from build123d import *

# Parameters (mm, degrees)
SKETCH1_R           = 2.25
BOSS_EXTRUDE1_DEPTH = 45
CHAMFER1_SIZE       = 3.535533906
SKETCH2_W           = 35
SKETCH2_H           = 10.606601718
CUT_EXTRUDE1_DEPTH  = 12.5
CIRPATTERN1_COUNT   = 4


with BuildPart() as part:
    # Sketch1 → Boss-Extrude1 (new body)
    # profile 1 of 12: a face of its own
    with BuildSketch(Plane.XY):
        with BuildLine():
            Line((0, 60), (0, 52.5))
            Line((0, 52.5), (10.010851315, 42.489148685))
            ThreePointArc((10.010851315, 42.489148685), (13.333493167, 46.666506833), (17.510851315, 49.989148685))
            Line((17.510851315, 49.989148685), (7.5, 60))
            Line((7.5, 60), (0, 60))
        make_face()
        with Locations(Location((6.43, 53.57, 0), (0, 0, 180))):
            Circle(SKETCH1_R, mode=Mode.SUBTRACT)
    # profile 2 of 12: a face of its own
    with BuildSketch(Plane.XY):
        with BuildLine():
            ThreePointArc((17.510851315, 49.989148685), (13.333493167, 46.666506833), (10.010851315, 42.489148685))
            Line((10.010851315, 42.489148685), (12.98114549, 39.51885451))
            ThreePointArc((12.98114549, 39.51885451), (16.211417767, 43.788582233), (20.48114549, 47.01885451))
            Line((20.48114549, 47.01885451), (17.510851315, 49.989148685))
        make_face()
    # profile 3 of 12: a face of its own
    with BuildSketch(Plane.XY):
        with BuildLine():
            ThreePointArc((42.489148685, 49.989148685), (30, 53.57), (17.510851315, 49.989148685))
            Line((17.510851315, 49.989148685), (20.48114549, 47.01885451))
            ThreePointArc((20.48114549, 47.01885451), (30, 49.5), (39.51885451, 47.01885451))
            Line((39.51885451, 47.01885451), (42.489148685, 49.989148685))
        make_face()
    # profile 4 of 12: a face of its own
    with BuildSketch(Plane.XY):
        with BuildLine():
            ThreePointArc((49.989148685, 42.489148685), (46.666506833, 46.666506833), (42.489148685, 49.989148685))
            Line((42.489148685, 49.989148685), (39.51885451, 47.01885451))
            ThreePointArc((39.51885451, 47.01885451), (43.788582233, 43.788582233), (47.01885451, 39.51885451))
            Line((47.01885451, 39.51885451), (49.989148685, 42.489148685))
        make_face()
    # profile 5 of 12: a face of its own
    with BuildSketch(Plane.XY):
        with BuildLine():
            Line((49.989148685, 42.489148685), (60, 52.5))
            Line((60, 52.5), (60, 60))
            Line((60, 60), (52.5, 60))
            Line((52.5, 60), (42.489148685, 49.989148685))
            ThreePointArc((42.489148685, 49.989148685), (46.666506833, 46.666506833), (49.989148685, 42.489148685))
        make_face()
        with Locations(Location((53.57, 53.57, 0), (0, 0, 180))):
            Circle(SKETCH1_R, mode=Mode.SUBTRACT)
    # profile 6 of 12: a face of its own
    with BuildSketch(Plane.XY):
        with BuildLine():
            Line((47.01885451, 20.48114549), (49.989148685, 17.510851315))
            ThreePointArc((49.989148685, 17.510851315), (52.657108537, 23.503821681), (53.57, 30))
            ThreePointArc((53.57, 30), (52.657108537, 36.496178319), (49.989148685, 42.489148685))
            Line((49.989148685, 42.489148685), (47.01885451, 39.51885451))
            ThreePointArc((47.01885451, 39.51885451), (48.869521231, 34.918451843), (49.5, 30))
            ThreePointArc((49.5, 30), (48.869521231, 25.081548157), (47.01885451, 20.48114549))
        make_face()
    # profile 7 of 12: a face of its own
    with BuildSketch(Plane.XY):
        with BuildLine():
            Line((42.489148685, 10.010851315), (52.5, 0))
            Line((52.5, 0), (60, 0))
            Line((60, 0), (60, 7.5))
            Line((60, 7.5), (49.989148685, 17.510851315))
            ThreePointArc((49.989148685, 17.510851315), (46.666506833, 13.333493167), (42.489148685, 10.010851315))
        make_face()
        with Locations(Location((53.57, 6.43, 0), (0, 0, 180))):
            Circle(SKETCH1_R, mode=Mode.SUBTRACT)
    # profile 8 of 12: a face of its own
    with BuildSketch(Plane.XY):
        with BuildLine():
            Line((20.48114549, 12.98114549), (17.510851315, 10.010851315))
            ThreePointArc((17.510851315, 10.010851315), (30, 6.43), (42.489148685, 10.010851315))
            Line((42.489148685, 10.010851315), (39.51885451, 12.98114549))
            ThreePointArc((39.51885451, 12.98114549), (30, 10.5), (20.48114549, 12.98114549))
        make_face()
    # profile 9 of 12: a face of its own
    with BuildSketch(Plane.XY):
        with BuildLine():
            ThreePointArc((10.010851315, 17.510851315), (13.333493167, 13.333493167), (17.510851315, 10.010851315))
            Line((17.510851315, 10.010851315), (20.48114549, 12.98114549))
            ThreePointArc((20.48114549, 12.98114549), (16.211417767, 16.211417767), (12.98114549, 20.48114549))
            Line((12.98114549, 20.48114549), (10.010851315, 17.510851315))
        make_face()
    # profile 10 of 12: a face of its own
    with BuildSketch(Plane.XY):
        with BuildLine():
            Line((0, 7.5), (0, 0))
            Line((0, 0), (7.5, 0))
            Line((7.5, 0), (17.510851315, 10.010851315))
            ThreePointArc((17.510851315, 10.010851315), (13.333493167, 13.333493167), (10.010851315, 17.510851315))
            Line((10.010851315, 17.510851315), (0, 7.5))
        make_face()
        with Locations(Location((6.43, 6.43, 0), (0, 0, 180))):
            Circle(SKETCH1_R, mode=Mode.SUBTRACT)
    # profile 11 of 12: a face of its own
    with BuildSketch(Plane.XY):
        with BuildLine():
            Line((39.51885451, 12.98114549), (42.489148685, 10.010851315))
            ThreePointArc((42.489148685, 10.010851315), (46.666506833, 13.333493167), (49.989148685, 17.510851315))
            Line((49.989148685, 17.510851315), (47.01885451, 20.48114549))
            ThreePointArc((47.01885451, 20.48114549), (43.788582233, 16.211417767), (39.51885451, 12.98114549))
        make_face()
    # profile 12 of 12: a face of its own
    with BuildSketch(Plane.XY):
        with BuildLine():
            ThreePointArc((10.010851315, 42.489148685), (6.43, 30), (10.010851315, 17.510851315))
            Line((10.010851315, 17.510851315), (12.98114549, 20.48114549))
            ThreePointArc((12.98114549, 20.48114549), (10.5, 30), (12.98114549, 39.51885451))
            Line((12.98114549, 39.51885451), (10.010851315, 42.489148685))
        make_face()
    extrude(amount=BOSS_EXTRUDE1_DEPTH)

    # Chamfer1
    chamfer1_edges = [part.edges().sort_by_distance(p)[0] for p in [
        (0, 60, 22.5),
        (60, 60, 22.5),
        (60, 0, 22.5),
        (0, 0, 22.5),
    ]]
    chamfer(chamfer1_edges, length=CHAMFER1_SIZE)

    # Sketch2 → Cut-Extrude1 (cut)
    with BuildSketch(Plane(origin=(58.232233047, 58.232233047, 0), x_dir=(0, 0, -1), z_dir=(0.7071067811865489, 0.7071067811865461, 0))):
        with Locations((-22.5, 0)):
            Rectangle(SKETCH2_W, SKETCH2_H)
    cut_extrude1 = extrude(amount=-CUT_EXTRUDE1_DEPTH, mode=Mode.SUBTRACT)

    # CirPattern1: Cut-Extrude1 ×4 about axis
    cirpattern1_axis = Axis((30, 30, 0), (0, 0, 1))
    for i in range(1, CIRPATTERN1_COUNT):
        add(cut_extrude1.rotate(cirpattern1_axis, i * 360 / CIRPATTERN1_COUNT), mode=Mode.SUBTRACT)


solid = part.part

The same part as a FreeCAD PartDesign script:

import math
import FreeCAD as App
import Part
import Sketcher
from FreeCAD import Vector
Q = App.Units.Quantity


def edges_at(feature, points):
    """Names of the edges that pass closest to the given points."""
    edges = feature.Shape.Edges
    near = lambda p: min(range(len(edges)), key=lambda i: edges[i].distToShape(Part.Vertex(*p))[0])
    return sorted({f"Edge{near(p) + 1}" for p in points})

doc = App.newDocument("Part")
body = doc.addObject("PartDesign::Body", "Body")

# Sketch on XY plane
sketch1 = doc.addObject("Sketcher::SketchObject", "Sketch")
body.addObject(sketch1)
sketch1.AttachmentSupport = (doc.XY_Plane, [""])
sketch1.MapMode = "FlatFace"
sketch1.addGeometry(Part.LineSegment(Vector(0, 60, 0), Vector(0, 52.5, 0)), False)
sketch1.addGeometry(Part.LineSegment(Vector(0, 52.5, 0), Vector(10, 42.5, 0)), False)
sketch1.addGeometry(Part.ArcOfCircle(Part.Circle(Vector(30, 30, 0), Vector(0, 0, 1), 23.6), math.radians(148), math.radians(212)), False)
sketch1.addGeometry(Part.LineSegment(Vector(10, 17.5, 0), Vector(0, 7.5, 0)), False)
sketch1.addGeometry(Part.LineSegment(Vector(0, 7.5, 0), Vector(0, 0, 0)), False)
sketch1.addGeometry(Part.LineSegment(Vector(0, 0, 0), Vector(7.5, 0, 0)), False)
sketch1.addGeometry(Part.LineSegment(Vector(7.5, 0, 0), Vector(17.5, 10, 0)), False)
sketch1.addGeometry(Part.ArcOfCircle(Part.Circle(Vector(30, 30, 0), Vector(0, 0, 1), 23.6), math.radians(-122), math.radians(-58)), False)
sketch1.addGeometry(Part.LineSegment(Vector(42.5, 10, 0), Vector(52.5, 0, 0)), False)
sketch1.addGeometry(Part.LineSegment(Vector(52.5, 0, 0), Vector(60, 0, 0)), False)
sketch1.addGeometry(Part.LineSegment(Vector(60, 0, 0), Vector(60, 7.5, 0)), False)
sketch1.addGeometry(Part.LineSegment(Vector(60, 7.5, 0), Vector(50, 17.5, 0)), False)
sketch1.addGeometry(Part.ArcOfCircle(Part.Circle(Vector(30, 30, 0), Vector(0, 0, 1), 23.6), math.radians(-32), math.radians(0)), False)
sketch1.addGeometry(Part.ArcOfCircle(Part.Circle(Vector(30, 30, 0), Vector(0, 0, 1), 23.6), math.radians(0), math.radians(32)), False)
sketch1.addGeometry(Part.LineSegment(Vector(50, 42.5, 0), Vector(60, 52.5, 0)), False)
sketch1.addGeometry(Part.LineSegment(Vector(60, 52.5, 0), Vector(60, 60, 0)), False)
sketch1.addGeometry(Part.LineSegment(Vector(60, 60, 0), Vector(52.5, 60, 0)), False)
sketch1.addGeometry(Part.LineSegment(Vector(52.5, 60, 0), Vector(42.5, 50, 0)), False)
sketch1.addGeometry(Part.ArcOfCircle(Part.Circle(Vector(30, 30, 0), Vector(0, 0, 1), 23.6), math.radians(58), math.radians(122)), False)
sketch1.addGeometry(Part.LineSegment(Vector(17.5, 50, 0), Vector(7.5, 60, 0)), False)
sketch1.addGeometry(Part.LineSegment(Vector(7.5, 60, 0), Vector(0, 60, 0)), False)
sketch1.addGeometry(Part.Circle(Vector(6.4, 53.6, 0), Vector(0, 0, 1), 2.2), False)
sketch1.addGeometry(Part.ArcOfCircle(Part.Circle(Vector(30, 30, 0), Vector(0, 0, 1), 19.5), math.radians(119), math.radians(151)), False)
sketch1.addGeometry(Part.ArcOfCircle(Part.Circle(Vector(30, 30, 0), Vector(0, 0, 1), 19.5), math.radians(61), math.radians(119)), False)
sketch1.addGeometry(Part.ArcOfCircle(Part.Circle(Vector(30, 30, 0), Vector(0, 0, 1), 19.5), math.radians(29), math.radians(61)), False)
sketch1.addGeometry(Part.ArcOfCircle(Part.Circle(Vector(30, 30, 0), Vector(0, 0, 1), 19.5), math.radians(0), math.radians(29)), False)
sketch1.addGeometry(Part.ArcOfCircle(Part.Circle(Vector(30, 30, 0), Vector(0, 0, 1), 19.5), math.radians(-29), math.radians(0)), False)
sketch1.addGeometry(Part.ArcOfCircle(Part.Circle(Vector(30, 30, 0), Vector(0, 0, 1), 19.5), math.radians(-61), math.radians(-29)), False)
sketch1.addGeometry(Part.ArcOfCircle(Part.Circle(Vector(30, 30, 0), Vector(0, 0, 1), 19.5), math.radians(-119), math.radians(-61)), False)
sketch1.addGeometry(Part.ArcOfCircle(Part.Circle(Vector(30, 30, 0), Vector(0, 0, 1), 19.5), math.radians(-151), math.radians(-119)), False)
sketch1.addGeometry(Part.ArcOfCircle(Part.Circle(Vector(30, 30, 0), Vector(0, 0, 1), 19.5), math.radians(151), math.radians(209)), False)
sketch1.addGeometry(Part.Circle(Vector(53.6, 53.6, 0), Vector(0, 0, 1), 2.2), False)
sketch1.addGeometry(Part.Circle(Vector(6.4, 6.4, 0), Vector(0, 0, 1), 2.2), False)
sketch1.addGeometry(Part.Circle(Vector(53.6, 6.4, 0), Vector(0, 0, 1), 2.2), False)
sketch1.addConstraint(Sketcher.Constraint("Coincident", 0, 2, 1, 1))
sketch1.addConstraint(Sketcher.Constraint("Coincident", 1, 2, 2, 1))
sketch1.addConstraint(Sketcher.Constraint("Coincident", 2, 2, 3, 1))
sketch1.addConstraint(Sketcher.Constraint("Coincident", 3, 2, 4, 1))
sketch1.addConstraint(Sketcher.Constraint("Coincident", 4, 2, 5, 1))
sketch1.addConstraint(Sketcher.Constraint("Coincident", 5, 2, 6, 1))
sketch1.addConstraint(Sketcher.Constraint("Coincident", 6, 2, 7, 1))
sketch1.addConstraint(Sketcher.Constraint("Coincident", 7, 2, 8, 1))
sketch1.addConstraint(Sketcher.Constraint("Coincident", 8, 2, 9, 1))
sketch1.addConstraint(Sketcher.Constraint("Coincident", 9, 2, 10, 1))
sketch1.addConstraint(Sketcher.Constraint("Coincident", 10, 2, 11, 1))
sketch1.addConstraint(Sketcher.Constraint("Coincident", 11, 2, 12, 1))
sketch1.addConstraint(Sketcher.Constraint("Tangent", 12, 2, 13, 1))
sketch1.addConstraint(Sketcher.Constraint("Coincident", 13, 2, 14, 1))
sketch1.addConstraint(Sketcher.Constraint("Coincident", 14, 2, 15, 1))
sketch1.addConstraint(Sketcher.Constraint("Coincident", 15, 2, 16, 1))
sketch1.addConstraint(Sketcher.Constraint("Coincident", 16, 2, 17, 1))
sketch1.addConstraint(Sketcher.Constraint("Coincident", 17, 2, 18, 1))
sketch1.addConstraint(Sketcher.Constraint("Coincident", 18, 2, 19, 1))
sketch1.addConstraint(Sketcher.Constraint("Coincident", 19, 2, 20, 1))
sketch1.addConstraint(Sketcher.Constraint("Coincident", 20, 2, 0, 1))
sketch1.addConstraint(Sketcher.Constraint("Tangent", 22, 1, 23, 2))
sketch1.addConstraint(Sketcher.Constraint("Tangent", 23, 1, 24, 2))
sketch1.addConstraint(Sketcher.Constraint("Tangent", 24, 1, 25, 2))
sketch1.addConstraint(Sketcher.Constraint("Tangent", 25, 1, 26, 2))
sketch1.addConstraint(Sketcher.Constraint("Tangent", 26, 1, 27, 2))
sketch1.addConstraint(Sketcher.Constraint("Tangent", 27, 1, 28, 2))
sketch1.addConstraint(Sketcher.Constraint("Tangent", 28, 1, 29, 2))
sketch1.addConstraint(Sketcher.Constraint("Tangent", 29, 1, 30, 2))
sketch1.addConstraint(Sketcher.Constraint("Tangent", 30, 1, 22, 2))
sketch1.addConstraint(Sketcher.Constraint("Vertical", 0))
sketch1.addConstraint(Sketcher.Constraint("Vertical", 4))
sketch1.addConstraint(Sketcher.Constraint("Horizontal", 5))
sketch1.addConstraint(Sketcher.Constraint("Horizontal", 9))
sketch1.addConstraint(Sketcher.Constraint("Vertical", 10))
sketch1.addConstraint(Sketcher.Constraint("Vertical", 15))
sketch1.addConstraint(Sketcher.Constraint("Horizontal", 16))
sketch1.addConstraint(Sketcher.Constraint("Horizontal", 20))
sketch1.addConstraint(Sketcher.Constraint("Coincident", 4, 2, -1, 1))
sketch1.addConstraint(Sketcher.Constraint("Coincident", 7, 3, 2, 3))
sketch1.addConstraint(Sketcher.Constraint("Coincident", 12, 3, 2, 3))
sketch1.addConstraint(Sketcher.Constraint("Coincident", 18, 3, 2, 3))
sketch1.addConstraint(Sketcher.Constraint("Coincident", 22, 3, 2, 3))
sketch1.addConstraint(Sketcher.Constraint("Coincident", 24, 3, 2, 3))
sketch1.addConstraint(Sketcher.Constraint("Coincident", 26, 3, 2, 3))
sketch1.addConstraint(Sketcher.Constraint("Coincident", 28, 3, 2, 3))
sketch1.addConstraint(Sketcher.Constraint("Equal", 2, 7))
sketch1.addConstraint(Sketcher.Constraint("Equal", 7, 12))
sketch1.addConstraint(Sketcher.Constraint("Equal", 12, 13))
sketch1.addConstraint(Sketcher.Constraint("Equal", 13, 18))
sketch1.addConstraint(Sketcher.Constraint("Equal", 21, 31))
sketch1.addConstraint(Sketcher.Constraint("Equal", 31, 32))
sketch1.addConstraint(Sketcher.Constraint("Equal", 32, 33))
sketch1.addConstraint(Sketcher.Constraint("PointOnObject", 0, 2, -2))
sketch1.addConstraint(Sketcher.Constraint("PointOnObject", 8, 2, -1))
sketch1.addConstraint(Sketcher.Constraint("Perpendicular", 1, 3))
sketch1.addConstraint(Sketcher.Constraint("Parallel", 3, 6))
sketch1.addConstraint(Sketcher.Constraint("Perpendicular", 6, 8))
sketch1.addConstraint(Sketcher.Constraint("Parallel", 8, 11))
sketch1.addConstraint(Sketcher.Constraint("Perpendicular", 11, 14))
sketch1.addConstraint(Sketcher.Constraint("Parallel", 14, 17))
sketch1.addConstraint(Sketcher.Constraint("Perpendicular", 17, 19))
sketch1.addConstraint(Sketcher.Constraint("Horizontal", 21, 3, 31, 3))
sketch1.addConstraint(Sketcher.Constraint("Horizontal", 32, 3, 33, 3))
sketch1.addConstraint(Sketcher.Constraint("Horizontal", 6, 2, 7, 2))
sketch1.addConstraint(Sketcher.Constraint("Horizontal", 3, 2, 10, 2))
sketch1.addConstraint(Sketcher.Constraint("Horizontal", 2, 2, 11, 2))
sketch1.addConstraint(Sketcher.Constraint("Horizontal", 30, 3, 12, 2))
sketch1.addConstraint(Sketcher.Constraint("Horizontal", 1, 2, 13, 2))
sketch1.addConstraint(Sketcher.Constraint("Horizontal", 0, 2, 14, 2))
sketch1.addConstraint(Sketcher.Constraint("Horizontal", 17, 2, 18, 2))
sketch1.addConstraint(Sketcher.Constraint("Horizontal", 16, 2, 19, 2))
sketch1.addConstraint(Sketcher.Constraint("Horizontal", 22, 1, 23, 1))
sketch1.addConstraint(Sketcher.Constraint("Horizontal", 12, 2, 25, 1))
sketch1.addConstraint(Sketcher.Constraint("Horizontal", 27, 1, 28, 1))
sketch1.addConstraint(Sketcher.Constraint("Horizontal", 26, 1, 29, 1))
sketch1.addConstraint(Sketcher.Constraint("Horizontal", 24, 1, 30, 1))
sketch1.addConstraint(Sketcher.Constraint("Vertical", 21, 3, 32, 3))
sketch1.addConstraint(Sketcher.Constraint("Vertical", 31, 3, 33, 3))
sketch1.addConstraint(Sketcher.Constraint("Vertical", 1, 2, 2, 2))
sketch1.addConstraint(Sketcher.Constraint("Vertical", 33, 3, 12, 2))
sketch1.addConstraint(Sketcher.Constraint("Vertical", 10, 2, 14, 2))
sketch1.addConstraint(Sketcher.Constraint("Vertical", 8, 2, 16, 2))
sketch1.addConstraint(Sketcher.Constraint("Vertical", 7, 2, 17, 2))
sketch1.addConstraint(Sketcher.Constraint("Vertical", 24, 1, 26, 1))
sketch1.addConstraint(Sketcher.Constraint("Vertical", 23, 1, 27, 1))
sketch1.addConstraint(Sketcher.Constraint("Equal", 20, 0))
sketch1.addConstraint(Sketcher.Constraint("Equal", 3, 6))
sketch1.addConstraint(Sketcher.Constraint("Diameter", 21, Q("4.5 mm")))
sketch1.addConstraint(Sketcher.Constraint("Radius", 22, Q("19.5 mm")))
sketch1.addConstraint(Sketcher.Constraint("Radius", 2, Q("23.57 mm")))
sketch1.addConstraint(Sketcher.Constraint("DistanceX", 5, 1, 5, 2, Q("7.5 mm")))
sketch1.addConstraint(Sketcher.Constraint("DistanceX", -1, 1, 2, 3, Q("30 mm")))
sketch1.addConstraint(Sketcher.Constraint("DistanceX", 23, 1, 24, 1, Q("7.5 mm")))
sketch1.addConstraint(Sketcher.Constraint("DistanceY", 24, 1, 23, 1, Q("7.5 mm")))
sketch1.addConstraint(Sketcher.Constraint("DistanceX", -1, 1, 21, 3, Q("6.43 mm")))
sketch1.addConstraint(Sketcher.Constraint("DistanceY", -1, 1, 21, 3, Q("53.57 mm")))
sketch1.addConstraint(Sketcher.Constraint("DistanceY", -1, 1, 32, 3, Q("6.43 mm")))
pad1 = doc.addObject("PartDesign::Pad", "Pad")
body.addObject(pad1)
pad1.Profile = sketch1
pad1.Length = 45
doc.recompute()

chamfer = doc.addObject("PartDesign::Chamfer", "Chamfer")
body.addObject(chamfer)
chamfer.Base = (pad1, edges_at(pad1, [
    (0, 60, 22.5),
    (60, 60, 22.5),
    (60, 0, 22.5),
    (0, 0, 22.5),
]))
chamfer.Size = 3.535534

# Sketch on an angled plane
sketch2 = doc.addObject("Sketcher::SketchObject", "Sketch001")
body.addObject(sketch2)
sketch2.Placement = App.Placement(Vector(58.232233, 58.232233, 0), App.Rotation(Vector(0, 0, -1), Vector(-0.707106781, 0.707106781, 0), Vector(0.707106781, 0.707106781, 0), "ZXY"))
sketch2.addGeometry(Part.LineSegment(Vector(-40, 5, 0), Vector(-40, -5, 0)), False)
sketch2.addGeometry(Part.LineSegment(Vector(-40, -5, 0), Vector(-5, -5, 0)), False)
sketch2.addGeometry(Part.LineSegment(Vector(-5, -5, 0), Vector(-5, 5, 0)), False)
sketch2.addGeometry(Part.LineSegment(Vector(-5, 5, 0), Vector(-40, 5, 0)), False)
sketch2.addConstraint(Sketcher.Constraint("Coincident", 0, 2, 1, 1))
sketch2.addConstraint(Sketcher.Constraint("Coincident", 1, 2, 2, 1))
sketch2.addConstraint(Sketcher.Constraint("Coincident", 2, 2, 3, 1))
sketch2.addConstraint(Sketcher.Constraint("Coincident", 3, 2, 0, 1))
sketch2.addConstraint(Sketcher.Constraint("Vertical", 0))
sketch2.addConstraint(Sketcher.Constraint("Horizontal", 1))
sketch2.addConstraint(Sketcher.Constraint("Vertical", 2))
sketch2.addConstraint(Sketcher.Constraint("Horizontal", 3))
sketch2.addConstraint(Sketcher.Constraint("DistanceX", 1, 1, 1, 2, Q("35 mm")))
sketch2.addConstraint(Sketcher.Constraint("DistanceX", 0, 2, -1, 1, Q("40 mm")))
sketch2.addConstraint(Sketcher.Constraint("DistanceY", 0, 2, 0, 1, Q("10.606602 mm")))
sketch2.addConstraint(Sketcher.Constraint("DistanceY", 0, 2, -1, 1, Q("5.303301 mm")))
pocket1 = doc.addObject("PartDesign::Pocket", "Pocket")
body.addObject(pocket1)
pocket1.Profile = sketch2
pocket1.Length = 12.5
doc.recompute()

datumline = doc.addObject("PartDesign::Line", "DatumLine")
body.addObject(datumline)
datumline.Placement = App.Placement(Vector(30, 30, 0), App.Rotation(Vector(0, 0, 1), Vector(0, 0, 1)))
polarpattern = doc.addObject("PartDesign::PolarPattern", "PolarPattern")
body.addObject(polarpattern)
polarpattern.Originals = [pocket1]
polarpattern.Axis = (datumline, [""])
polarpattern.Angle = 360
polarpattern.Occurrences = 4
body.Tip = polarpattern

doc.recompute()
